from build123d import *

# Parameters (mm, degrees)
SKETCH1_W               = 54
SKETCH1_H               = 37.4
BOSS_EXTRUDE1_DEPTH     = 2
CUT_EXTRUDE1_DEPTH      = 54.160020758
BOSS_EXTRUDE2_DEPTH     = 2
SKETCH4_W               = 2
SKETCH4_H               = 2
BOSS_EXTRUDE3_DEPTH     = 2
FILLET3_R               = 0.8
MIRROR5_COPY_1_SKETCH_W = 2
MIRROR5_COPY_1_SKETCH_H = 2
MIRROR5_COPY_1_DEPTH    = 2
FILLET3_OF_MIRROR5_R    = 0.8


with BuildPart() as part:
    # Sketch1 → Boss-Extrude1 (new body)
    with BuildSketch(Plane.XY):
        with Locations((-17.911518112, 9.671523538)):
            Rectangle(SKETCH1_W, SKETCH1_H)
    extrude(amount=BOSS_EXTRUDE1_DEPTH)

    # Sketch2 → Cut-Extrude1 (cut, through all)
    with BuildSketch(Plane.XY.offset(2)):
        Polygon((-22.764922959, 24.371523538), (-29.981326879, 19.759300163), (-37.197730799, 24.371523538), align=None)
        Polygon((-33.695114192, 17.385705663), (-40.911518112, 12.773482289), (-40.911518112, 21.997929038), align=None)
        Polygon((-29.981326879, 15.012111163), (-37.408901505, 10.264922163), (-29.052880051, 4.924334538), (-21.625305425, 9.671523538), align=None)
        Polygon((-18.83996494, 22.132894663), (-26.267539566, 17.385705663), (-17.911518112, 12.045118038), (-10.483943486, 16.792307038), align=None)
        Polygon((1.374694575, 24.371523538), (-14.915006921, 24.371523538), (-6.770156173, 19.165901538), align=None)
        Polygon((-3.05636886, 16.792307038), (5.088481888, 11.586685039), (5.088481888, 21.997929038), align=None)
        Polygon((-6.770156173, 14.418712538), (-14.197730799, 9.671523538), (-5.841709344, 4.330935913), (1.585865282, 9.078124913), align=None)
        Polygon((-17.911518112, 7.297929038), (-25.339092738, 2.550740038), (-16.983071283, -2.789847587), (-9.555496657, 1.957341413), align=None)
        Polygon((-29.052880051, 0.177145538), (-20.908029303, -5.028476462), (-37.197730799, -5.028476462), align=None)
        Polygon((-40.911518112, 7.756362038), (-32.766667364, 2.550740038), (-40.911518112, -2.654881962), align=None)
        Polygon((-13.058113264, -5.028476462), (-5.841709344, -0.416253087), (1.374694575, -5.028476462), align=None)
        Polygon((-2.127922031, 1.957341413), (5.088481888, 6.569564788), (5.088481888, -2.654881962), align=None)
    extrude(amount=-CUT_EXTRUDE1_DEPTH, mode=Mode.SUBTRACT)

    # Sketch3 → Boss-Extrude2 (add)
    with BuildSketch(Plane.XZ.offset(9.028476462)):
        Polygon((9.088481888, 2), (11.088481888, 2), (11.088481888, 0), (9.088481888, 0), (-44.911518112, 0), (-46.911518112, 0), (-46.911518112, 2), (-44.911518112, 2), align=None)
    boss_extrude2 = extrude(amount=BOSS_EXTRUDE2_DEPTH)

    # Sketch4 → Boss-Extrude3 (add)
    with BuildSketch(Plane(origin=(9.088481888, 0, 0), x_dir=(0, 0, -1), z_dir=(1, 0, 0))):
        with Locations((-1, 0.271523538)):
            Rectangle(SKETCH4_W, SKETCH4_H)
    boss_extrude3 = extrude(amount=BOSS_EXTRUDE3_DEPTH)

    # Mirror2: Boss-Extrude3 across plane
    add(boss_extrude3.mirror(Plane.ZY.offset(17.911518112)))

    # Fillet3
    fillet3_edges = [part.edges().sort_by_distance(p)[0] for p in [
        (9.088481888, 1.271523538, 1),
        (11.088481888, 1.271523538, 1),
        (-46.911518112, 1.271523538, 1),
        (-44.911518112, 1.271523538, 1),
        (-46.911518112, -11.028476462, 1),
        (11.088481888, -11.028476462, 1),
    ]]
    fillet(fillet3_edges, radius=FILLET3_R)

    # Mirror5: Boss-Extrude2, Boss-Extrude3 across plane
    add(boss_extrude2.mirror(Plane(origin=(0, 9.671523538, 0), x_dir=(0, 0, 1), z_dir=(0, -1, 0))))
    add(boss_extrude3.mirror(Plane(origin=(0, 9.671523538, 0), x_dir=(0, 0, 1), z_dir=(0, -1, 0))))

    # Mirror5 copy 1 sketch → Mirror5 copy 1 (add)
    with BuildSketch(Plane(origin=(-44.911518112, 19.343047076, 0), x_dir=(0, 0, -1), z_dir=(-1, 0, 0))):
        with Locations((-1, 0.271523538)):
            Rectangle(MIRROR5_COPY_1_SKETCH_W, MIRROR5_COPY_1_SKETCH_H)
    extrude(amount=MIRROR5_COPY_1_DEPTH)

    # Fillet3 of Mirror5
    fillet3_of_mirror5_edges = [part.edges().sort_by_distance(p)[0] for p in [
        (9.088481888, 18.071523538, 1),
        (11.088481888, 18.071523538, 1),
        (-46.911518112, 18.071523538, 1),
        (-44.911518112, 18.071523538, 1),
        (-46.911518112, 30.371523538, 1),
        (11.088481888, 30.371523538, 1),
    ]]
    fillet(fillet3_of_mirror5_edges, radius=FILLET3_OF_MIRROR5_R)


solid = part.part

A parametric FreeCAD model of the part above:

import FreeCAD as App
import Part
import Sketcher
from FreeCAD import Vector
Q = App.Units.Quantity


def edges_at(feature, points):
    """Names of the edges that pass closest to the given points."""
    edges = feature.Shape.Edges
    near = lambda p: min(range(len(edges)), key=lambda i: edges[i].distToShape(Part.Vertex(*p))[0])
    return sorted({f"Edge{near(p) + 1}" for p in points})

doc = App.newDocument("Part")
body = doc.addObject("PartDesign::Body", "Body")

sketch1 = body.newObject("Sketcher::SketchObject", "Sketch")
sketch1.AttachmentSupport = (doc.getObject("XY_Plane"), [""])
sketch1.MapMode = "FlatFace"
sketch1.addGeometry(Part.LineSegment(Vector(-45, 28, 0), Vector(-45, -9, 0)), False)
sketch1.addGeometry(Part.LineSegment(Vector(-45, -9, 0), Vector(9, -9, 0)), False)
sketch1.addGeometry(Part.LineSegment(Vector(9, -9, 0), Vector(9, 28, 0)), False)
sketch1.addGeometry(Part.LineSegment(Vector(9, 28, 0), Vector(-45, 28, 0)), False)
sketch1.addConstraint(Sketcher.Constraint("Coincident", 0, 2, 1, 1))
sketch1.addConstraint(Sketcher.Constraint("Coincident", 1, 2, 2, 1))
sketch1.addConstraint(Sketcher.Constraint("Coincident", 2, 2, 3, 1))
sketch1.addConstraint(Sketcher.Constraint("Coincident", 3, 2, 0, 1))
sketch1.addConstraint(Sketcher.Constraint("Vertical", 0))
sketch1.addConstraint(Sketcher.Constraint("Horizontal", 1))
sketch1.addConstraint(Sketcher.Constraint("Vertical", 2))
sketch1.addConstraint(Sketcher.Constraint("Horizontal", 3))
sketch1.addConstraint(Sketcher.Constraint("DistanceX", 1, 1, 1, 2, Q("54 mm")))
sketch1.addConstraint(Sketcher.Constraint("DistanceY", 0, 2, 0, 1, Q("37.4 mm")))
sketch1.addConstraint(Sketcher.Constraint("DistanceX", 0, 2, -1, 1, Q("44.911518 mm")))
sketch1.addConstraint(Sketcher.Constraint("DistanceY", 0, 2, -1, 1, Q("9.028476 mm")))
pad1 = body.newObject("PartDesign::Pad", "Pad")
pad1.Profile = sketch1
pad1.Length = 2

sketch2 = body.newObject("Sketcher::SketchObject", "Sketch001")
sketch2.AttachmentSupport = (doc.getObject("XY_Plane"), [""])
sketch2.MapMode = "FlatFace"
sketch2.AttachmentOffset = App.Placement(Vector(0, 0, 2), App.Rotation())
sketch2.addGeometry(Part.LineSegment(Vector(-30, 20, 0), Vector(-23, 24, 0)), False)
sketch2.addGeometry(Part.LineSegment(Vector(-23, 24, 0), Vector(-37, 24, 0)), False)
sketch2.addGeometry(Part.LineSegment(Vector(-37, 24, 0), Vector(-30, 20, 0)), False)
sketch2.addGeometry(Part.LineSegment(Vector(-41, 13, 0), Vector(-34, 17, 0)), False)
sketch2.addGeometry(Part.LineSegment(Vector(-34, 17, 0), Vector(-41, 22, 0)), False)
sketch2.addGeometry(Part.LineSegment(Vector(-41, 22, 0), Vector(-41, 13, 0)), False)
sketch2.addGeometry(Part.LineSegment(Vector(-30, 15, 0), Vector(-37, 10, 0)), False)
sketch2.addGeometry(Part.LineSegment(Vector(-37, 10, 0), Vector(-29, 5, 0)), False)
sketch2.addGeometry(Part.LineSegment(Vector(-29, 5, 0), Vector(-22, 10, 0)), False)
sketch2.addGeometry(Part.LineSegment(Vector(-22, 10, 0), Vector(-30, 15, 0)), False)
sketch2.addGeometry(Part.LineSegment(Vector(-19, 22, 0), Vector(-26, 17, 0)), False)
sketch2.addGeometry(Part.LineSegment(Vector(-26, 17, 0), Vector(-18, 12, 0)), False)
sketch2.addGeometry(Part.LineSegment(Vector(-18, 12, 0), Vector(-10, 17, 0)), False)
sketch2.addGeometry(Part.LineSegment(Vector(-10, 17, 0), Vector(-19, 22, 0)), False)
sketch2.addGeometry(Part.LineSegment(Vector(1, 24, 0), Vector(-15, 24, 0)), False)
sketch2.addGeometry(Part.LineSegment(Vector(-15, 24, 0), Vector(-7, 19, 0)), False)
sketch2.addGeometry(Part.LineSegment(Vector(-7, 19, 0), Vector(1, 24, 0)), False)
sketch2.addGeometry(Part.LineSegment(Vector(-3, 17, 0), Vector(5, 12, 0)), False)
sketch2.addGeometry(Part.LineSegment(Vector(5, 12, 0), Vector(5, 22, 0)), False)
sketch2.addGeometry(Part.LineSegment(Vector(5, 22, 0), Vector(-3, 17, 0)), False)
sketch2.addGeometry(Part.LineSegment(Vector(-7, 14, 0), Vector(-14, 10, 0)), False)
sketch2.addGeometry(Part.LineSegment(Vector(-14, 10, 0), Vector(-6, 4, 0)), False)
sketch2.addGeometry(Part.LineSegment(Vector(-6, 4, 0), Vector(2, 9, 0)), False)
sketch2.addGeometry(Part.LineSegment(Vector(2, 9, 0), Vector(-7, 14, 0)), False)
sketch2.addGeometry(Part.LineSegment(Vector(-18, 7, 0), Vector(-25, 3, 0)), False)
sketch2.addGeometry(Part.LineSegment(Vector(-25, 3, 0), Vector(-17, -3, 0)), False)
sketch2.addGeometry(Part.LineSegment(Vector(-17, -3, 0), Vector(-10, 2, 0)), False)
sketch2.addGeometry(Part.LineSegment(Vector(-10, 2, 0), Vector(-18, 7, 0)), False)
sketch2.addGeometry(Part.LineSegment(Vector(-21, -5, 0), Vector(-29, 0, 0)), False)
sketch2.addGeometry(Part.LineSegment(Vector(-29, 0, 0), Vector(-37, -5, 0)), False)
sketch2.addGeometry(Part.LineSegment(Vector(-37, -5, 0), Vector(-21, -5, 0)), False)
sketch2.addGeometry(Part.LineSegment(Vector(-33, 3, 0), Vector(-41, 8, 0)), False)
sketch2.addGeometry(Part.LineSegment(Vector(-41, 8, 0), Vector(-41, -3, 0)), False)
sketch2.addGeometry(Part.LineSegment(Vector(-41, -3, 0), Vector(-33, 3, 0)), False)
sketch2.addGeometry(Part.LineSegment(Vector(-6, 0, 0), Vector(-13, -5, 0)), False)
sketch2.addGeometry(Part.LineSegment(Vector(-13, -5, 0), Vector(1, -5, 0)), False)
sketch2.addGeometry(Part.LineSegment(Vector(1, -5, 0), Vector(-6, 0, 0)), False)
sketch2.addGeometry(Part.LineSegment(Vector(5, 7, 0), Vector(-2, 2, 0)), False)
sketch2.addGeometry(Part.LineSegment(Vector(-2, 2, 0), Vector(5, -3, 0)), False)
sketch2.addGeometry(Part.LineSegment(Vector(5, -3, 0), Vector(5, 7, 0)), False)
sketch2.addConstraint(Sketcher.Constraint("Coincident", 0, 2, 1, 1))
sketch2.addConstraint(Sketcher.Constraint("Coincident", 1, 2, 2, 1))
sketch2.addConstraint(Sketcher.Constraint("Coincident", 2, 2, 0, 1))
sketch2.addConstraint(Sketcher.Constraint("Coincident", 3, 2, 4, 1))
sketch2.addConstraint(Sketcher.Constraint("Coincident", 4, 2, 5, 1))
sketch2.addConstraint(Sketcher.Constraint("Coincident", 5, 2, 3, 1))
sketch2.addConstraint(Sketcher.Constraint("Coincident", 6, 2, 7, 1))
sketch2.addConstraint(Sketcher.Constraint("Coincident", 7, 2, 8, 1))
sketch2.addConstraint(Sketcher.Constraint("Coincident", 8, 2, 9, 1))
sketch2.addConstraint(Sketcher.Constraint("Coincident", 9, 2, 6, 1))
sketch2.addConstraint(Sketcher.Constraint("Coincident", 10, 2, 11, 1))
sketch2.addConstraint(Sketcher.Constraint("Coincident", 11, 2, 12, 1))
sketch2.addConstraint(Sketcher.Constraint("Coincident", 12, 2, 13, 1))
sketch2.addConstraint(Sketcher.Constraint("Coincident", 13, 2, 10, 1))
sketch2.addConstraint(Sketcher.Constraint("Coincident", 14, 2, 15, 1))
sketch2.addConstraint(Sketcher.Constraint("Coincident", 15, 2, 16, 1))
sketch2.addConstraint(Sketcher.Constraint("Coincident", 16, 2, 14, 1))
sketch2.addConstraint(Sketcher.Constraint("Coincident", 17, 2, 18, 1))
sketch2.addConstraint(Sketcher.Constraint("Coincident", 18, 2, 19, 1))
sketch2.addConstraint(Sketcher.Constraint("Coincident", 19, 2, 17, 1))
sketch2.addConstraint(Sketcher.Constraint("Coincident", 20, 2, 21, 1))
sketch2.addConstraint(Sketcher.Constraint("Coincident", 21, 2, 22, 1))
sketch2.addConstraint(Sketcher.Constraint("Coincident", 22, 2, 23, 1))
sketch2.addConstraint(Sketcher.Constraint("Coincident", 23, 2, 20, 1))
sketch2.addConstraint(Sketcher.Constraint("Coincident", 24, 2, 25, 1))
sketch2.addConstraint(Sketcher.Constraint("Coincident", 25, 2, 26, 1))
sketch2.addConstraint(Sketcher.Constraint("Coincident", 26, 2, 27, 1))
sketch2.addConstraint(Sketcher.Constraint("Coincident", 27, 2, 24, 1))
sketch2.addConstraint(Sketcher.Constraint("Coincident", 28, 2, 29, 1))
sketch2.addConstraint(Sketcher.Constraint("Coincident", 29, 2, 30, 1))
sketch2.addConstraint(Sketcher.Constraint("Coincident", 30, 2, 28, 1))
sketch2.addConstraint(Sketcher.Constraint("Coincident", 31, 2, 32, 1))
sketch2.addConstraint(Sketcher.Constraint("Coincident", 32, 2, 33, 1))
sketch2.addConstraint(Sketcher.Constraint("Coincident", 33, 2, 31, 1))
sketch2.addConstraint(Sketcher.Constraint("Coincident", 34, 2, 35, 1))
sketch2.addConstraint(Sketcher.Constraint("Coincident", 35, 2, 36, 1))
sketch2.addConstraint(Sketcher.Constraint("Coincident", 36, 2, 34, 1))
sketch2.addConstraint(Sketcher.Constraint("Coincident", 37, 2, 38, 1))
sketch2.addConstraint(Sketcher.Constraint("Coincident", 38, 2, 39, 1))
sketch2.addConstraint(Sketcher.Constraint("Coincident", 39, 2, 37, 1))
sketch2.addConstraint(Sketcher.Constraint("Horizontal", 1))
sketch2.addConstraint(Sketcher.Constraint("Vertical", 5))
sketch2.addConstraint(Sketcher.Constraint("Horizontal", 14))
sketch2.addConstraint(Sketcher.Constraint("Vertical", 18))
sketch2.addConstraint(Sketcher.Constraint("Horizontal", 30))
sketch2.addConstraint(Sketcher.Constraint("Vertical", 32))
sketch2.addConstraint(Sketcher.Constraint("Horizontal", 35))
sketch2.addConstraint(Sketcher.Constraint("Vertical", 39))
sketch2.addConstraint(Sketcher.Constraint("Parallel", 0, 3))
sketch2.addConstraint(Sketcher.Constraint("Parallel", 2, 4))
sketch2.addConstraint(Sketcher.Constraint("Parallel", 3, 6))
sketch2.addConstraint(Sketcher.Constraint("Parallel", 4, 7))
sketch2.addConstraint(Sketcher.Constraint("Parallel", 6, 8))
sketch2.addConstraint(Sketcher.Constraint("Parallel", 7, 9))
sketch2.addConstraint(Sketcher.Constraint("Parallel", 8, 10))
sketch2.addConstraint(Sketcher.Constraint("Parallel", 9, 11))
sketch2.addConstraint(Sketcher.Constraint("Parallel", 10, 12))
sketch2.addConstraint(Sketcher.Constraint("Parallel", 11, 13))
sketch2.addConstraint(Sketcher.Constraint("Parallel", 13, 15))
sketch2.addConstraint(Sketcher.Constraint("Parallel", 12, 16))
sketch2.addConstraint(Sketcher.Constraint("Parallel", 15, 17))
sketch2.addConstraint(Sketcher.Constraint("Parallel", 16, 19))
sketch2.addConstraint(Sketcher.Constraint("Parallel", 19, 20))
sketch2.addConstraint(Sketcher.Constraint("Parallel", 17, 21))
sketch2.addConstraint(Sketcher.Constraint("Parallel", 20, 22))
sketch2.addConstraint(Sketcher.Constraint("Parallel", 21, 23))
sketch2.addConstraint(Sketcher.Constraint("Parallel", 22, 24))
sketch2.addConstraint(Sketcher.Constraint("Parallel", 23, 25))
sketch2.addConstraint(Sketcher.Constraint("Parallel", 24, 26))
sketch2.addConstraint(Sketcher.Constraint("Parallel", 25, 27))
sketch2.addConstraint(Sketcher.Constraint("Parallel", 27, 28))
sketch2.addConstraint(Sketcher.Constraint("Parallel", 26, 29))
sketch2.addConstraint(Sketcher.Constraint("Parallel", 28, 31))
sketch2.addConstraint(Sketcher.Constraint("Parallel", 29, 33))
sketch2.addConstraint(Sketcher.Constraint("Parallel", 33, 34))
sketch2.addConstraint(Sketcher.Constraint("Parallel", 31, 36))
sketch2.addConstraint(Sketcher.Constraint("Parallel", 34, 37))
sketch2.addConstraint(Sketcher.Constraint("Parallel", 36, 38))
sketch2.addConstraint(Sketcher.Constraint("Horizontal", 3, 2, 10, 2))
sketch2.addConstraint(Sketcher.Constraint("Horizontal", 1, 2, 14, 2))
sketch2.addConstraint(Sketcher.Constraint("Horizontal", 4, 2, 18, 2))
sketch2.addConstraint(Sketcher.Constraint("Horizontal", 12, 2, 19, 2))
sketch2.addConstraint(Sketcher.Constraint("Horizontal", 8, 2, 20, 2))
sketch2.addConstraint(Sketcher.Constraint("Horizontal", 24, 2, 33, 2))
sketch2.addConstraint(Sketcher.Constraint("Horizontal", 30, 2, 34, 2))
sketch2.addConstraint(Sketcher.Constraint("Horizontal", 26, 2, 37, 2))
sketch2.addConstraint(Sketcher.Constraint("Horizontal", 32, 2, 38, 2))
sketch2.addConstraint(Sketcher.Constraint("Vertical", 2, 2, 9, 2))
sketch2.addConstraint(Sketcher.Constraint("Vertical", 15, 2, 23, 2))
sketch2.addConstraint(Sketcher.Constraint("Vertical", 11, 2, 27, 2))
sketch2.addConstraint(Sketcher.Constraint("Vertical", 7, 2, 28, 2))
sketch2.addConstraint(Sketcher.Constraint("Vertical", 1, 2, 29, 2))
sketch2.addConstraint(Sketcher.Constraint("Vertical", 5, 2, 31, 2))
sketch2.addConstraint(Sketcher.Constraint("Vertical", 16, 2, 35, 2))
sketch2.addConstraint(Sketcher.Constraint("Vertical", 21, 2, 36, 2))
sketch2.addConstraint(Sketcher.Constraint("Vertical", 18, 2, 38, 2))
sketch2.addConstraint(Sketcher.Constraint("Equal", 14, 30))
sketch2.addConstraint(Sketcher.Constraint("Equal", 1, 35))
sketch2.addConstraint(Sketcher.Constraint("Equal", 18, 32))
sketch2.addConstraint(Sketcher.Constraint("Equal", 5, 39))
sketch2.addConstraint(Sketcher.Constraint("Equal", 0, 2))
sketch2.addConstraint(Sketcher.Constraint("Equal", 2, 3))
sketch2.addConstraint(Sketcher.Constraint("Equal", 8, 10))
sketch2.addConstraint(Sketcher.Constraint("Equal", 9, 11))
sketch2.addConstraint(Sketcher.Constraint("Equal", 12, 20))
sketch2.addConstraint(Sketcher.Constraint("Equal", 22, 24))
sketch2.addConstraint(Sketcher.Constraint("DistanceX", 11, 2, 17, 2, Q("23 mm")))
sketch2.addConstraint(Sketcher.Constraint("DistanceY", 8, 2, 0, 2, Q("14.7 mm")))
sketch2.addConstraint(Sketcher.Constraint("DistanceX", 14, 2, 14, 1, Q("16.289701 mm")))
sketch2.addConstraint(Sketcher.Constraint("DistanceY", -1, 1, 2, 2, Q("19.7593 mm")))
sketch2.addConstraint(Sketcher.Constraint("DistanceX", 6, 2, -1, 1, Q("37.408902 mm")))
sketch2.addConstraint(Sketcher.Constraint("DistanceY", -1, 1, 15, 2, Q("19.165902 mm")))
sketch2.addConstraint(Sketcher.Constraint("DistanceY", 29, 2, 6, 2, Q("15.293399 mm")))
sketch2.addConstraint(Sketcher.Constraint("Distance", 0, Q("8.564408 mm")))
sketch2.addConstraint(Sketcher.Constraint("DistanceX", 1, 2, -1, 1, Q("37.197731 mm")))
sketch2.addConstraint(Sketcher.Constraint("DistanceX", 4, 2, -1, 1, Q("40.911518 mm")))
sketch2.addConstraint(Sketcher.Constraint("DistanceY", -1, 1, 4, 2, Q("21.997929 mm")))
sketch2.addConstraint(Sketcher.Constraint("DistanceX", 10, 2, -1, 1, Q("26.26754 mm")))
sketch2.addConstraint(Sketcher.Constraint("DistanceX", 20, 2, -1, 1, Q("14.197731 mm")))
sketch2.addConstraint(Sketcher.Constraint("DistanceY", -1, 1, 24, 2, Q("2.55074 mm")))
pocket1 = body.newObject("PartDesign::Pocket", "Pocket")
pocket1.Profile = sketch2
pocket1.Type = "ThroughAll"

sketch3 = body.newObject("Sketcher::SketchObject", "Sketch002")
sketch3.AttachmentSupport = (doc.getObject("XZ_Plane"), [""])
sketch3.MapMode = "FlatFace"
sketch3.AttachmentOffset = App.Placement(Vector(0, 0, 9.028476), App.Rotation())
sketch3.addGeometry(Part.LineSegment(Vector(11.1, 2, 0), Vector(-46.9, 2, 0)), False)
sketch3.addGeometry(Part.LineSegment(Vector(-46.9, 2, 0), Vector(-46.9, 0, 0)), False)
sketch3.addGeometry(Part.LineSegment(Vector(-46.9, 0, 0), Vector(11.1, 0, 0)), False)
sketch3.addGeometry(Part.LineSegment(Vector(11.1, 0, 0), Vector(11.1, 2, 0)), False)
sketch3.addConstraint(Sketcher.Constraint("Coincident", 0, 2, 1, 1))
sketch3.addConstraint(Sketcher.Constraint("Coincident", 1, 2, 2, 1))
sketch3.addConstraint(Sketcher.Constraint("Coincident", 2, 2, 3, 1))
sketch3.addConstraint(Sketcher.Constraint("Coincident", 3, 2, 0, 1))
sketch3.addConstraint(Sketcher.Constraint("Horizontal", 0))
sketch3.addConstraint(Sketcher.Constraint("Vertical", 1))
sketch3.addConstraint(Sketcher.Constraint("Horizontal", 2))
sketch3.addConstraint(Sketcher.Constraint("Vertical", 3))
sketch3.addConstraint(Sketcher.Constraint("PointOnObject", 1, 2, -1))
sketch3.addConstraint(Sketcher.Constraint("DistanceX", 0, 2, 0, 1, Q("58 mm")))
sketch3.addConstraint(Sketcher.Constraint("DistanceY", 1, 2, 1, 1, Q("2 mm")))
sketch3.addConstraint(Sketcher.Constraint("DistanceX", 0, 2, -1, 1, Q("46.911518 mm")))
pad2 = body.newObject("PartDesign::Pad", "Pad001")
pad2.Profile = sketch3
pad2.Length = 2

sketch4 = body.newObject("Sketcher::SketchObject", "Sketch003")
sketch4.AttachmentSupport = (doc.getObject("YZ_Plane"), [""])
sketch4.MapMode = "FlatFace"
sketch4.AttachmentOffset = App.Placement(Vector(0, 0, 9.088482), App.Rotation())
sketch4.addGeometry(Part.LineSegment(Vector(1.3, 2, 0), Vector(-0.7, 2, 0)), False)
sketch4.addGeometry(Part.LineSegment(Vector(-0.7, 2, 0), Vector(-0.7, 0, 0)), False)
sketch4.addGeometry(Part.LineSegment(Vector(-0.7, 0, 0), Vector(1.3, 0, 0)), False)
sketch4.addGeometry(Part.LineSegment(Vector(1.3, 0, 0), Vector(1.3, 2, 0)), False)
sketch4.addConstraint(Sketcher.Constraint("Coincident", 0, 2, 1, 1))
sketch4.addConstraint(Sketcher.Constraint("Coincident", 1, 2, 2, 1))
sketch4.addConstraint(Sketcher.Constraint("Coincident", 2, 2, 3, 1))
sketch4.addConstraint(Sketcher.Constraint("Coincident", 3, 2, 0, 1))
sketch4.addConstraint(Sketcher.Constraint("Horizontal", 0))
sketch4.addConstraint(Sketcher.Constraint("Vertical", 1))
sketch4.addConstraint(Sketcher.Constraint("Horizontal", 2))
sketch4.addConstraint(Sketcher.Constraint("Vertical", 3))
sketch4.addConstraint(Sketcher.Constraint("PointOnObject", 1, 2, -1))
sketch4.addConstraint(Sketcher.Constraint("Equal", 2, 1))
sketch4.addConstraint(Sketcher.Constraint("DistanceX", 0, 2, 0, 1, Q("2 mm")))
sketch4.addConstraint(Sketcher.Constraint("DistanceX", 0, 2, -1, 1, Q("0.728476 mm")))
pad3 = body.newObject("PartDesign::Pad", "Pad002")
pad3.Profile = sketch4
pad3.Length = 2
doc.recompute()

datumplane = body.newObject("PartDesign::Plane", "DatumPlane")
datumplane.AttachmentSupport = (doc.getObject("YZ_Plane"), [""])
datumplane.MapMode = "FlatFace"
datumplane.AttachmentOffset = App.Placement(Vector(0, 0, -17.911518), App.Rotation())
mirrored = body.newObject("PartDesign::Mirrored", "Mirrored")
mirrored.Originals = [pad3]
mirrored.MirrorPlane = (datumplane, [""])
body.Tip = mirrored
doc.recompute()

fillet = body.newObject("PartDesign::Fillet", "Fillet")
fillet.Base = (mirrored, edges_at(mirrored, [
    (9.088, 1.272, 1),
    (11.088, 1.272, 1),
    (-46.912, 1.272, 1),
    (-44.912, 1.272, 1),
    (-46.912, -11.028, 1),
    (11.088, -11.028, 1),
]))
fillet.Radius = 0.8
doc.recompute()

datumplane2 = body.newObject("PartDesign::Plane", "DatumPlane001")
datumplane2.AttachmentSupport = (doc.getObject("XZ_Plane"), [""])
datumplane2.MapMode = "FlatFace"
datumplane2.AttachmentOffset = App.Placement(Vector(0, 0, -9.671524), App.Rotation())
mirrored2 = body.newObject("PartDesign::Mirrored", "Mirrored001")
mirrored2.Originals = [pad2, pad3]
mirrored2.MirrorPlane = (datumplane2, [""])
body.Tip = mirrored2

sketch5 = body.newObject("Sketcher::SketchObject", "Sketch004")
sketch5.AttachmentSupport = (doc.getObject("YZ_Plane"), [""])
sketch5.MapMode = "FlatFace"
sketch5.AttachmentOffset = App.Placement(Vector(0, 0, -44.911518), App.Rotation())
sketch5.addGeometry(Part.LineSegment(Vector(18.1, 2, 0), Vector(20.1, 2, 0)), False)
sketch5.addGeometry(Part.LineSegment(Vector(20.1, 2, 0), Vector(20.1, 0, 0)), False)
sketch5.addGeometry(Part.LineSegment(Vector(20.1, 0, 0), Vector(18.1, 0, 0)), False)
sketch5.addGeometry(Part.LineSegment(Vector(18.1, 0, 0), Vector(18.1, 2, 0)), False)
sketch5.addConstraint(Sketcher.Constraint("Coincident", 0, 2, 1, 1))
sketch5.addConstraint(Sketcher.Constraint("Coincident", 1, 2, 2, 1))
sketch5.addConstraint(Sketcher.Constraint("Coincident", 2, 2, 3, 1))
sketch5.addConstraint(Sketcher.Constraint("Coincident", 3, 2, 0, 1))
sketch5.addConstraint(Sketcher.Constraint("Horizontal", 0))
sketch5.addConstraint(Sketcher.Constraint("Vertical", 1))
sketch5.addConstraint(Sketcher.Constraint("Horizontal", 2))
sketch5.addConstraint(Sketcher.Constraint("Vertical", 3))
sketch5.addConstraint(Sketcher.Constraint("PointOnObject", 1, 2, -1))
sketch5.addConstraint(Sketcher.Constraint("Equal", 2, 1))
sketch5.addConstraint(Sketcher.Constraint("DistanceX", 0, 1, 0, 2, Q("2 mm")))
sketch5.addConstraint(Sketcher.Constraint("DistanceX", -1, 1, 0, 2, Q("20.071524 mm")))
pad4 = body.newObject("PartDesign::Pad", "Pad003")
pad4.Profile = sketch5
pad4.Length = 2
pad4.Reversed = True
doc.recompute()

fillet2 = body.newObject("PartDesign::Fillet", "Fillet001")
fillet2.Base = (pad4, edges_at(pad4, [
    (9.088, 18.072, 1),
    (11.088, 18.072, 1),
    (-46.912, 18.072, 1),
    (-44.912, 18.072, 1),
    (-46.912, 30.372, 1),
    (11.088, 30.372, 1),
]))
fillet2.Radius = 0.8

doc.recompute()
